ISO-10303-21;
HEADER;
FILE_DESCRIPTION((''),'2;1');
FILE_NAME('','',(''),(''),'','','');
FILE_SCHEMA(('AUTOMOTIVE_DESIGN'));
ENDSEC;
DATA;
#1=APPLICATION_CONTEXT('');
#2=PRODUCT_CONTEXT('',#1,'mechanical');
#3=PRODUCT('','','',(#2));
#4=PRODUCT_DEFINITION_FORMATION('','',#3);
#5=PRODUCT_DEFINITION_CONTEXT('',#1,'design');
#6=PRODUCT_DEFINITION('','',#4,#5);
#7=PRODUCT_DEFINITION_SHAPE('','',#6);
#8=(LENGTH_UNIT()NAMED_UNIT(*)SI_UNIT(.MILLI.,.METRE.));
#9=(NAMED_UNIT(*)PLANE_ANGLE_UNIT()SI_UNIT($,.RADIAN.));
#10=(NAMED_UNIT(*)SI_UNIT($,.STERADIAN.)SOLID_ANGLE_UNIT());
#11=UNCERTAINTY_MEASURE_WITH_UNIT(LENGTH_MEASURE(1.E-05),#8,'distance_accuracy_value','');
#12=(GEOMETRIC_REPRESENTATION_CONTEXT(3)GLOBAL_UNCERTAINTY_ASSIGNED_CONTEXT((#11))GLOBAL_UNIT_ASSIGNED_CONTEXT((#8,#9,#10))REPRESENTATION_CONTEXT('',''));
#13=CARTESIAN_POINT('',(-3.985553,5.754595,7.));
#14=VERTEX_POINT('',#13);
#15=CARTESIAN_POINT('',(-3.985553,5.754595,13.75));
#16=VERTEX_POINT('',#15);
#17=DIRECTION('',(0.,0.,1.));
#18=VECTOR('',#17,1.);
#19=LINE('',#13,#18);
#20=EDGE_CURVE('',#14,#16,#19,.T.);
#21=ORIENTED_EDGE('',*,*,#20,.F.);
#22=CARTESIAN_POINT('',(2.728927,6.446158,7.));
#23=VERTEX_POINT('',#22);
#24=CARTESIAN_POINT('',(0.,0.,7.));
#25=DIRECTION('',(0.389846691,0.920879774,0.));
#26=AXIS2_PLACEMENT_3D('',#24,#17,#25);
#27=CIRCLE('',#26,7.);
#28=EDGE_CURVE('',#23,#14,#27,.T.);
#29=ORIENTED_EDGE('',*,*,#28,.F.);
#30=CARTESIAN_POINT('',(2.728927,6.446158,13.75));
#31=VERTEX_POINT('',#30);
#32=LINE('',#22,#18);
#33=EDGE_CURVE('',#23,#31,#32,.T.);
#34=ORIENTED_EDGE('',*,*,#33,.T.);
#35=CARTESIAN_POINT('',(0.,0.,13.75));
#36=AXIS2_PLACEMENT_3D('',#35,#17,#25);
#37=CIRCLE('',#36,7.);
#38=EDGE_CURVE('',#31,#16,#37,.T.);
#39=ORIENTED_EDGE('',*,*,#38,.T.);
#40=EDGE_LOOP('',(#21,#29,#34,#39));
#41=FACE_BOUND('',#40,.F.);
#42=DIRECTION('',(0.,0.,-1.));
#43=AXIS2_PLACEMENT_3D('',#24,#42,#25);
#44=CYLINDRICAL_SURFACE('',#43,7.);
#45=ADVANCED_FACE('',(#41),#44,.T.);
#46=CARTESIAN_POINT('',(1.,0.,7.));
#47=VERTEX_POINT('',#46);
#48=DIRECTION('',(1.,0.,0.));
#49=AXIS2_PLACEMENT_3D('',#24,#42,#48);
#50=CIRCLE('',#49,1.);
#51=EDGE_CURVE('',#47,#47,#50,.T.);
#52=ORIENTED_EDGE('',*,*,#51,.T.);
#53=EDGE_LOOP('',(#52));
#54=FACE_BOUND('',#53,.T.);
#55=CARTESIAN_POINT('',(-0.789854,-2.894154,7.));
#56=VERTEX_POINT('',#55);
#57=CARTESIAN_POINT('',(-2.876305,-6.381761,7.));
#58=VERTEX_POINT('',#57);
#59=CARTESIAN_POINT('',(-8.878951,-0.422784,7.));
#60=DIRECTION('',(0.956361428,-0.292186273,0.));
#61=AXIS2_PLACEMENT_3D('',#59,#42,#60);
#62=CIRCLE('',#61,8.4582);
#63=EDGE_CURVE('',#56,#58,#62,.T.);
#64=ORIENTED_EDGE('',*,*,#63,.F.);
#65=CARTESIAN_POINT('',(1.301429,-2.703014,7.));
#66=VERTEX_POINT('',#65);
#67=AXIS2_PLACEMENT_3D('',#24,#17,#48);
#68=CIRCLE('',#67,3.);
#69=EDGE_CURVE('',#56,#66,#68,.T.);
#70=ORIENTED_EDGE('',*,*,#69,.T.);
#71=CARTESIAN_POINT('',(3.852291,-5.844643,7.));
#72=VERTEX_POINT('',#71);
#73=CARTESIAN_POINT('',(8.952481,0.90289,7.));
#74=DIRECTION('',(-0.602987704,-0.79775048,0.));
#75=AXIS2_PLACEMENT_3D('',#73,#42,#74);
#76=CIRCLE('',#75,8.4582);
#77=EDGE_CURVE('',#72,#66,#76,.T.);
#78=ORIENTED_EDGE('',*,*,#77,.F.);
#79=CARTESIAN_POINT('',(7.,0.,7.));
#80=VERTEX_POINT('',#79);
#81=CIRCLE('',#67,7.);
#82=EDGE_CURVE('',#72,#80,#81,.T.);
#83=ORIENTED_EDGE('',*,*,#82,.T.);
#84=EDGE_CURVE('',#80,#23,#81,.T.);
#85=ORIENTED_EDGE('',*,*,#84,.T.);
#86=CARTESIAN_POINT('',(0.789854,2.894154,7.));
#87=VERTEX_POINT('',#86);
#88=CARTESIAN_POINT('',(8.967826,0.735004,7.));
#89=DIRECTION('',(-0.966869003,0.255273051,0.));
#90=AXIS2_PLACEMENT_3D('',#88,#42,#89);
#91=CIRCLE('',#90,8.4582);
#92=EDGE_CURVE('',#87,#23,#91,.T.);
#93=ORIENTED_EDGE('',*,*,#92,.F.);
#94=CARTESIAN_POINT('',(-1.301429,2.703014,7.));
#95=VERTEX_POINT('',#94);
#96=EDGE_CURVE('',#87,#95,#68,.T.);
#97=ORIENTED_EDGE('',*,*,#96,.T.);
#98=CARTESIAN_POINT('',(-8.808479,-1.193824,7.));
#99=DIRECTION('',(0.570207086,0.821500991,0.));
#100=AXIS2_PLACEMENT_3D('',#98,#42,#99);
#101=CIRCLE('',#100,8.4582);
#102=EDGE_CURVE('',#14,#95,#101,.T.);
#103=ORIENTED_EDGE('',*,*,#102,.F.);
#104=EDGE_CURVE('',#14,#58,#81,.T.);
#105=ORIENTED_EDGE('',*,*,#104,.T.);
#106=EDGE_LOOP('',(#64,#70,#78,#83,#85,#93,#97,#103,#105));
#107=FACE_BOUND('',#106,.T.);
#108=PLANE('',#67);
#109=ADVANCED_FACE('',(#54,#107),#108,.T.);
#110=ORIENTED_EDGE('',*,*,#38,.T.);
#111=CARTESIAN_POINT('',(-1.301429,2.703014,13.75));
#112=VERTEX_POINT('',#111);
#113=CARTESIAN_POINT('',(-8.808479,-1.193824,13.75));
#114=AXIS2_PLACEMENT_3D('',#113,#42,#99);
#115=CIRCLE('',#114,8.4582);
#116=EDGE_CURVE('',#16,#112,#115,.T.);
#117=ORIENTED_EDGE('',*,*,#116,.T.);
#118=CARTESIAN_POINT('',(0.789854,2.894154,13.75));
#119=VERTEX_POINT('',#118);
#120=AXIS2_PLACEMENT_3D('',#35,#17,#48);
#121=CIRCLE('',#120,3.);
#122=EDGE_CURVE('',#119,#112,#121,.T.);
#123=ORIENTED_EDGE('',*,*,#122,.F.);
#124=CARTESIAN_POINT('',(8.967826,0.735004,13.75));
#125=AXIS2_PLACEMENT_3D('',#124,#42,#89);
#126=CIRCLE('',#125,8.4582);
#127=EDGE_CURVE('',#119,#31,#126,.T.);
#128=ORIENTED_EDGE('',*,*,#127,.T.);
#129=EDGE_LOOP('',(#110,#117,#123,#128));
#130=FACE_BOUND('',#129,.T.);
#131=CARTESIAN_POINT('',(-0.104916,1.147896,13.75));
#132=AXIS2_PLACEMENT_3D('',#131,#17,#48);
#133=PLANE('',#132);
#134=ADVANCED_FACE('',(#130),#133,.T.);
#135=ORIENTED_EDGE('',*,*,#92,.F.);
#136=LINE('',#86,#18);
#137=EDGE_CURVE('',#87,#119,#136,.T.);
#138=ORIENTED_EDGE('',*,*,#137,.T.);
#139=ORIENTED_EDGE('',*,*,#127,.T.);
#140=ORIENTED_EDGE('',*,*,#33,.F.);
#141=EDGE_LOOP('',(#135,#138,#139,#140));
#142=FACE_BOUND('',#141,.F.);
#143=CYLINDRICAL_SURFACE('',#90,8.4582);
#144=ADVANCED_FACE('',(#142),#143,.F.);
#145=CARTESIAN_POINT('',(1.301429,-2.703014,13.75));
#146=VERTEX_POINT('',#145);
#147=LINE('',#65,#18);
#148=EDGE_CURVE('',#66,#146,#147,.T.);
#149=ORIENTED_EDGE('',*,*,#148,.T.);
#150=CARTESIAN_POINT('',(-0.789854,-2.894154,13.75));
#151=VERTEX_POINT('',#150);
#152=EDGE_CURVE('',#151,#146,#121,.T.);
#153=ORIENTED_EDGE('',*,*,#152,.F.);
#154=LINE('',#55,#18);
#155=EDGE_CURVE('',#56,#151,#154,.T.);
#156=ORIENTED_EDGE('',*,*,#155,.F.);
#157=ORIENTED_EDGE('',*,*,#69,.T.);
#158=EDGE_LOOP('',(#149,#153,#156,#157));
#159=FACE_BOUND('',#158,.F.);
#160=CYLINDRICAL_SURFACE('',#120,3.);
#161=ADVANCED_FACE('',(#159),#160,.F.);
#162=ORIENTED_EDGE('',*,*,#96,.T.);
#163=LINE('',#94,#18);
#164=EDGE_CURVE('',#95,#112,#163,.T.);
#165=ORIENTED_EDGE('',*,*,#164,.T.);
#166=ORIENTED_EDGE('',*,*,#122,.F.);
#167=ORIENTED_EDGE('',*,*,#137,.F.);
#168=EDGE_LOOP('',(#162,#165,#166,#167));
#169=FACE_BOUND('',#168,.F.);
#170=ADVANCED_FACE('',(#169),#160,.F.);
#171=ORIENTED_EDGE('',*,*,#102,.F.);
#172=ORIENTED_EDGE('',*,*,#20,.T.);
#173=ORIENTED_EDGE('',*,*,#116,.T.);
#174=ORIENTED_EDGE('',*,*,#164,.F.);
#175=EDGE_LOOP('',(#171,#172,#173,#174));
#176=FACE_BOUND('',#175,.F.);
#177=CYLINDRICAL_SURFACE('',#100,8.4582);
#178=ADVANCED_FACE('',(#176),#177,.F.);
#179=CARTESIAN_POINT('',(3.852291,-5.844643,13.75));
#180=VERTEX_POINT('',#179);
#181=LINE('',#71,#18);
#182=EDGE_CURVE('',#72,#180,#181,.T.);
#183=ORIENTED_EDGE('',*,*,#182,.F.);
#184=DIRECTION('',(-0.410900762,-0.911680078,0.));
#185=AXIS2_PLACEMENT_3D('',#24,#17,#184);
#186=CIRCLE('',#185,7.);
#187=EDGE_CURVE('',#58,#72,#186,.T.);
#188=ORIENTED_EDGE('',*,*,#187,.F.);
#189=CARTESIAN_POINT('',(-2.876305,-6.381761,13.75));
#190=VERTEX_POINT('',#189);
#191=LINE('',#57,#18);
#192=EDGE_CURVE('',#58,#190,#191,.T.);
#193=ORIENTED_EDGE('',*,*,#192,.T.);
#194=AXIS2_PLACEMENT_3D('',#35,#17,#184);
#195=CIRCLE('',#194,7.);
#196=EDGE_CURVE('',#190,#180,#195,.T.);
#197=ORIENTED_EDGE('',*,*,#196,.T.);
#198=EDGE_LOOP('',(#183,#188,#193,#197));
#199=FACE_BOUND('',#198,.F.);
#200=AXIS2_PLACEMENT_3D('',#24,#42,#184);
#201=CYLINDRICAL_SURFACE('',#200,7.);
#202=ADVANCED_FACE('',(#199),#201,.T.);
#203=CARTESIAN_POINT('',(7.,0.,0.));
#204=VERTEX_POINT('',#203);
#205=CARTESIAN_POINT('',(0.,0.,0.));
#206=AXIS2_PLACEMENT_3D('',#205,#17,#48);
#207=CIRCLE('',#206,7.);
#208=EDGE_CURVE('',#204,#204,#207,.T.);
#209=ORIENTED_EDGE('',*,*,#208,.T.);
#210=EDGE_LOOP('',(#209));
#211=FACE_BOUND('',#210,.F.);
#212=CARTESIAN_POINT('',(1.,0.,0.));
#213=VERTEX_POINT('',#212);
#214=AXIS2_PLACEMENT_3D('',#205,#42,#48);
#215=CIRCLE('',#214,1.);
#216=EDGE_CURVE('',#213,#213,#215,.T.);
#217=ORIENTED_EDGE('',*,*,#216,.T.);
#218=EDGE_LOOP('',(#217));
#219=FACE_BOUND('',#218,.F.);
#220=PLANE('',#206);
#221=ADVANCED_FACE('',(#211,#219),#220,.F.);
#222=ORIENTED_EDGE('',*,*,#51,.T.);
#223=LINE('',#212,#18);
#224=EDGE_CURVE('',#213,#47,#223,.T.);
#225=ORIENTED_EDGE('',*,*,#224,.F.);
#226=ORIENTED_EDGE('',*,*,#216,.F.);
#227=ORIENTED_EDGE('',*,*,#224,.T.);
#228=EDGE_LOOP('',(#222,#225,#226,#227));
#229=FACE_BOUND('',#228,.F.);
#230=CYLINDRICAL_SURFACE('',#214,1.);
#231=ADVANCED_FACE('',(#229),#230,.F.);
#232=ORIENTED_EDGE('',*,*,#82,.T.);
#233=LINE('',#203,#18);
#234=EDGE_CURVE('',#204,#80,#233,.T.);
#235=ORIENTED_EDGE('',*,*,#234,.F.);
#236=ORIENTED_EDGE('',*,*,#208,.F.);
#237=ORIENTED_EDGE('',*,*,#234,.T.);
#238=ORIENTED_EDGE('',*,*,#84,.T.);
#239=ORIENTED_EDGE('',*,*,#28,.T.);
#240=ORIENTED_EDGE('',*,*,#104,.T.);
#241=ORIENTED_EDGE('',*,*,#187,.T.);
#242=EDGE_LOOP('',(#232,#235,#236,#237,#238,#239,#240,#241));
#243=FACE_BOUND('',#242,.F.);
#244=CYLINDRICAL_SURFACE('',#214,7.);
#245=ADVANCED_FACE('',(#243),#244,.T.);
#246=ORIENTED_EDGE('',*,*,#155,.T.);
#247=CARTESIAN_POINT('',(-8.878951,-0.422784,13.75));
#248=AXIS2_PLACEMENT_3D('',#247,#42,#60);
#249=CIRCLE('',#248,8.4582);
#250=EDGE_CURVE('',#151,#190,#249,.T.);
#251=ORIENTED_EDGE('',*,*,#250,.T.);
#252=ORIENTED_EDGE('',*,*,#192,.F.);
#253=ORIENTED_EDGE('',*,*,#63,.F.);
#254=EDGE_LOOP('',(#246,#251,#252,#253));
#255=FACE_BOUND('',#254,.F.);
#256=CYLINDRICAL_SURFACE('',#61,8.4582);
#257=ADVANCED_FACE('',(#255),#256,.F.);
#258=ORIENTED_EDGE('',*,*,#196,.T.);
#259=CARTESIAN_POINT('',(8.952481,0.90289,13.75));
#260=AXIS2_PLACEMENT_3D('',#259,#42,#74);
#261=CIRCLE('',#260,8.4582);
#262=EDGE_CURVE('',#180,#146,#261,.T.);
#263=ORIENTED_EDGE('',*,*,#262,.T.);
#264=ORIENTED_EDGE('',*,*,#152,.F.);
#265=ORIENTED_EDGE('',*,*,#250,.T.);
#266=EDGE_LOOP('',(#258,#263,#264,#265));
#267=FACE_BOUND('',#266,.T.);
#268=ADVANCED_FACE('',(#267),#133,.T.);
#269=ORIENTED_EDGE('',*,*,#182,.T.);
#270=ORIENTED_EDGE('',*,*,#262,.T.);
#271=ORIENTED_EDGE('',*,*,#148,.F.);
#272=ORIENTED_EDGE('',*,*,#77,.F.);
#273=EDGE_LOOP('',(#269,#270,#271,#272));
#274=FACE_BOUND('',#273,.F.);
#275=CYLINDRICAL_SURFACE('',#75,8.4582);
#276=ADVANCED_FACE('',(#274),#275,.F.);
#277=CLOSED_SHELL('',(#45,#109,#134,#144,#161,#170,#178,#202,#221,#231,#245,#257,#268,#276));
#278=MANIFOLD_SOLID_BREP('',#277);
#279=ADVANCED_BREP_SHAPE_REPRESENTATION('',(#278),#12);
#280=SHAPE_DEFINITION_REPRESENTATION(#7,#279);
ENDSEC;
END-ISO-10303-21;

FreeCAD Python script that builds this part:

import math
import FreeCAD as App
import Part
import Sketcher

V = App.Vector
Q = App.Units.Quantity

doc = App.newDocument("Part")
body = doc.addObject("PartDesign::Body", "Body")

sketch1 = body.newObject("Sketcher::SketchObject", "Sketch")
sketch1.AttachmentSupport = (doc.getObject("XY_Plane"), [""])
sketch1.MapMode = "FlatFace"
sketch1.addGeometry(Part.Circle(V(0, 0, 0), V(0, 0, 1), 7), False)
sketch1.addConstraint(Sketcher.Constraint("Coincident", 0, 3, -1, 1))
sketch1.addConstraint(Sketcher.Constraint("Diameter", 0, Q("14 mm")))
pad1 = body.newObject("PartDesign::Pad", "Pad")
pad1.Profile = sketch1
pad1.Length = 7

sketch2 = body.newObject("Sketcher::SketchObject", "Sketch001")
sketch2.AttachmentSupport = (doc.getObject("XY_Plane"), [""])
sketch2.MapMode = "FlatFace"
sketch2.AttachmentOffset = App.Placement(V(0, 0, 7), App.Rotation())
sketch2.addGeometry(Part.ArcOfCircle(Part.Circle(V(0, 0, 0), V(0, 0, 1), 3), math.radians(5.222253), math.radians(74.734938)), False)
sketch2.addGeometry(Part.ArcOfCircle(Part.Circle(V(8.967826, 0.735004, 0), V(0, 0, 1), 8.4582), math.radians(137.528683), math.radians(165.210235)), False)
sketch2.addGeometry(Part.ArcOfCircle(Part.Circle(V(0, 0, 0), V(0, 0, 1), 7), math.radians(67.05504), math.radians(124.705938)), False)
sketch2.addGeometry(Part.ArcOfCircle(Part.Circle(V(-8.808479, -1.193824, 0), V(0, 0, 1), 8.4582), math.radians(27.433396), math.radians(55.235332)), False)
sketch2.addGeometry(Part.ArcOfCircle(Part.Circle(V(0, 0, 0), V(0, 0, 1), 3), math.radians(115.709568), math.radians(185.222253)), False)
sketch2.addGeometry(Part.ArcOfCircle(Part.Circle(V(0, 0, 0), V(0, 0, 1), 3), math.radians(-174.777747), math.radians(-105.265062)), False)
sketch2.addGeometry(Part.ArcOfCircle(Part.Circle(V(-8.878951, -0.422784, 0), V(0, 0, 1), 8.4582), math.radians(-44.790826), math.radians(-16.98889)), False)
sketch2.addGeometry(Part.ArcOfCircle(Part.Circle(V(0, 0, 0), V(0, 0, 1), 7), math.radians(-114.261432), math.radians(-56.610534)), False)
sketch2.addGeometry(Part.ArcOfCircle(Part.Circle(V(8.952481, 0.90289, 0), V(0, 0, 1), 8.4582), math.radians(-154.765729), math.radians(-127.084177)), False)
sketch2.addGeometry(Part.ArcOfCircle(Part.Circle(V(0, 0, 0), V(0, 0, 1), 3), math.radians(-64.290432), math.radians(0)), False)
sketch2.addGeometry(Part.ArcOfCircle(Part.Circle(V(0, 0, 0), V(0, 0, 1), 3), math.radians(0), math.radians(5.222253)), False)
sketch2.addConstraint(Sketcher.Constraint("Coincident", 0, 2, 1, 2))
sketch2.addConstraint(Sketcher.Constraint("Coincident", 1, 1, 2, 1))
sketch2.addConstraint(Sketcher.Constraint("Coincident", 2, 2, 3, 2))
sketch2.addConstraint(Sketcher.Constraint("Coincident", 3, 1, 4, 1))
sketch2.addConstraint(Sketcher.Constraint("Tangent", 4, 2, 5, 1))
sketch2.addConstraint(Sketcher.Constraint("Coincident", 5, 2, 6, 2))
sketch2.addConstraint(Sketcher.Constraint("Coincident", 6, 1, 7, 1))
sketch2.addConstraint(Sketcher.Constraint("Coincident", 7, 2, 8, 2))
sketch2.addConstraint(Sketcher.Constraint("Coincident", 8, 1, 9, 1))
sketch2.addConstraint(Sketcher.Constraint("Tangent", 9, 2, 10, 1))
sketch2.addConstraint(Sketcher.Constraint("Tangent", 10, 2, 0, 1))
sketch2.addConstraint(Sketcher.Constraint("Coincident", 0, 3, -1, 1))
sketch2.addConstraint(Sketcher.Constraint("Coincident", 2, 3, -1, 1))
sketch2.addConstraint(Sketcher.Constraint("Coincident", 4, 3, -1, 1))
sketch2.addConstraint(Sketcher.Constraint("Coincident", 7, 3, -1, 1))
sketch2.addConstraint(Sketcher.Constraint("Coincident", 9, 3, -1, 1))
sketch2.addConstraint(Sketcher.Constraint("Equal", 1, 3))
sketch2.addConstraint(Sketcher.Constraint("Equal", 0, 4))
sketch2.addConstraint(Sketcher.Constraint("Equal", 4, 5))
sketch2.addConstraint(Sketcher.Constraint("Equal", 3, 6))
sketch2.addConstraint(Sketcher.Constraint("Equal", 2, 7))
sketch2.addConstraint(Sketcher.Constraint("Equal", 6, 8))
sketch2.addConstraint(Sketcher.Constraint("PointOnObject", 9, 2, -1))
sketch2.addConstraint(Sketcher.Constraint("Radius", 0, Q("3 mm")))
sketch2.addConstraint(Sketcher.Constraint("Radius", 2, Q("7 mm")))
sketch2.addConstraint(Sketcher.Constraint("Radius", 1, Q("8.4582 mm")))
sketch2.addConstraint(Sketcher.Constraint("DistanceX", 3, 3, -1, 1, Q("8.808479 mm")))
sketch2.addConstraint(Sketcher.Constraint("DistanceX", 6, 3, -1, 1, Q("8.878951 mm")))
sketch2.addConstraint(Sketcher.Constraint("DistanceX", -1, 1, 8, 3, Q("8.952481 mm")))
sketch2.addConstraint(Sketcher.Constraint("DistanceY", -1, 1, 8, 3, Q("0.90289 mm")))
sketch2.addConstraint(Sketcher.Constraint("DistanceY", -1, 1, 1, 1, Q("6.446158 mm")))
sketch2.addConstraint(Sketcher.Constraint("DistanceX", 3, 1, -1, 1, Q("1.301429 mm")))
sketch2.addConstraint(Sketcher.Constraint("DistanceY", 4, 2, -1, 1, Q("0.273058 mm")))
sketch2.addConstraint(Sketcher.Constraint("DistanceY", 6, 1, -1, 1, Q("6.381761 mm")))
sketch2.addConstraint(Sketcher.Constraint("DistanceY", -1, 1, 10, 2, Q("0.273058 mm")))
sketch2.addConstraint(Sketcher.Constraint("DistanceY", 3, 3, 1, 3, Q("1.928828 mm")))
pad2 = body.newObject("PartDesign::Pad", "Pad001")
pad2.Profile = sketch2
pad2.Length = 6.75

sketch3 = body.newObject("Sketcher::SketchObject", "Sketch002")
sketch3.AttachmentSupport = (doc.getObject("XY_Plane"), [""])
sketch3.MapMode = "FlatFace"
sketch3.AttachmentOffset = App.Placement(V(0, 0, 13.75), App.Rotation())
sketch3.addGeometry(Part.Circle(V(0, 0, 0), V(0, 0, 1), 3), False)
sketch3.addConstraint(Sketcher.Constraint("Coincident", 0, 3, -1, 1))
sketch3.addConstraint(Sketcher.Constraint("Diameter", 0, Q("6 mm")))
pocket1 = body.newObject("PartDesign::Pocket", "Pocket")
pocket1.Profile = sketch3
pocket1.Length = 6.75

sketch4 = body.newObject("Sketcher::SketchObject", "Sketch003")
sketch4.AttachmentSupport = (doc.getObject("XY_Plane"), [""])
sketch4.MapMode = "FlatFace"
sketch4.addGeometry(Part.Circle(V(0, 0, 0), V(0, 0, 1), 1), False)
sketch4.addConstraint(Sketcher.Constraint("Coincident", 0, 3, -1, 1))
sketch4.addConstraint(Sketcher.Constraint("Diameter", 0, Q("2 mm")))
pocket2 = body.newObject("PartDesign::Pocket", "Pocket001")
pocket2.Profile = sketch4
pocket2.Type = "ThroughAll"
pocket2.Reversed = True

doc.recompute()
